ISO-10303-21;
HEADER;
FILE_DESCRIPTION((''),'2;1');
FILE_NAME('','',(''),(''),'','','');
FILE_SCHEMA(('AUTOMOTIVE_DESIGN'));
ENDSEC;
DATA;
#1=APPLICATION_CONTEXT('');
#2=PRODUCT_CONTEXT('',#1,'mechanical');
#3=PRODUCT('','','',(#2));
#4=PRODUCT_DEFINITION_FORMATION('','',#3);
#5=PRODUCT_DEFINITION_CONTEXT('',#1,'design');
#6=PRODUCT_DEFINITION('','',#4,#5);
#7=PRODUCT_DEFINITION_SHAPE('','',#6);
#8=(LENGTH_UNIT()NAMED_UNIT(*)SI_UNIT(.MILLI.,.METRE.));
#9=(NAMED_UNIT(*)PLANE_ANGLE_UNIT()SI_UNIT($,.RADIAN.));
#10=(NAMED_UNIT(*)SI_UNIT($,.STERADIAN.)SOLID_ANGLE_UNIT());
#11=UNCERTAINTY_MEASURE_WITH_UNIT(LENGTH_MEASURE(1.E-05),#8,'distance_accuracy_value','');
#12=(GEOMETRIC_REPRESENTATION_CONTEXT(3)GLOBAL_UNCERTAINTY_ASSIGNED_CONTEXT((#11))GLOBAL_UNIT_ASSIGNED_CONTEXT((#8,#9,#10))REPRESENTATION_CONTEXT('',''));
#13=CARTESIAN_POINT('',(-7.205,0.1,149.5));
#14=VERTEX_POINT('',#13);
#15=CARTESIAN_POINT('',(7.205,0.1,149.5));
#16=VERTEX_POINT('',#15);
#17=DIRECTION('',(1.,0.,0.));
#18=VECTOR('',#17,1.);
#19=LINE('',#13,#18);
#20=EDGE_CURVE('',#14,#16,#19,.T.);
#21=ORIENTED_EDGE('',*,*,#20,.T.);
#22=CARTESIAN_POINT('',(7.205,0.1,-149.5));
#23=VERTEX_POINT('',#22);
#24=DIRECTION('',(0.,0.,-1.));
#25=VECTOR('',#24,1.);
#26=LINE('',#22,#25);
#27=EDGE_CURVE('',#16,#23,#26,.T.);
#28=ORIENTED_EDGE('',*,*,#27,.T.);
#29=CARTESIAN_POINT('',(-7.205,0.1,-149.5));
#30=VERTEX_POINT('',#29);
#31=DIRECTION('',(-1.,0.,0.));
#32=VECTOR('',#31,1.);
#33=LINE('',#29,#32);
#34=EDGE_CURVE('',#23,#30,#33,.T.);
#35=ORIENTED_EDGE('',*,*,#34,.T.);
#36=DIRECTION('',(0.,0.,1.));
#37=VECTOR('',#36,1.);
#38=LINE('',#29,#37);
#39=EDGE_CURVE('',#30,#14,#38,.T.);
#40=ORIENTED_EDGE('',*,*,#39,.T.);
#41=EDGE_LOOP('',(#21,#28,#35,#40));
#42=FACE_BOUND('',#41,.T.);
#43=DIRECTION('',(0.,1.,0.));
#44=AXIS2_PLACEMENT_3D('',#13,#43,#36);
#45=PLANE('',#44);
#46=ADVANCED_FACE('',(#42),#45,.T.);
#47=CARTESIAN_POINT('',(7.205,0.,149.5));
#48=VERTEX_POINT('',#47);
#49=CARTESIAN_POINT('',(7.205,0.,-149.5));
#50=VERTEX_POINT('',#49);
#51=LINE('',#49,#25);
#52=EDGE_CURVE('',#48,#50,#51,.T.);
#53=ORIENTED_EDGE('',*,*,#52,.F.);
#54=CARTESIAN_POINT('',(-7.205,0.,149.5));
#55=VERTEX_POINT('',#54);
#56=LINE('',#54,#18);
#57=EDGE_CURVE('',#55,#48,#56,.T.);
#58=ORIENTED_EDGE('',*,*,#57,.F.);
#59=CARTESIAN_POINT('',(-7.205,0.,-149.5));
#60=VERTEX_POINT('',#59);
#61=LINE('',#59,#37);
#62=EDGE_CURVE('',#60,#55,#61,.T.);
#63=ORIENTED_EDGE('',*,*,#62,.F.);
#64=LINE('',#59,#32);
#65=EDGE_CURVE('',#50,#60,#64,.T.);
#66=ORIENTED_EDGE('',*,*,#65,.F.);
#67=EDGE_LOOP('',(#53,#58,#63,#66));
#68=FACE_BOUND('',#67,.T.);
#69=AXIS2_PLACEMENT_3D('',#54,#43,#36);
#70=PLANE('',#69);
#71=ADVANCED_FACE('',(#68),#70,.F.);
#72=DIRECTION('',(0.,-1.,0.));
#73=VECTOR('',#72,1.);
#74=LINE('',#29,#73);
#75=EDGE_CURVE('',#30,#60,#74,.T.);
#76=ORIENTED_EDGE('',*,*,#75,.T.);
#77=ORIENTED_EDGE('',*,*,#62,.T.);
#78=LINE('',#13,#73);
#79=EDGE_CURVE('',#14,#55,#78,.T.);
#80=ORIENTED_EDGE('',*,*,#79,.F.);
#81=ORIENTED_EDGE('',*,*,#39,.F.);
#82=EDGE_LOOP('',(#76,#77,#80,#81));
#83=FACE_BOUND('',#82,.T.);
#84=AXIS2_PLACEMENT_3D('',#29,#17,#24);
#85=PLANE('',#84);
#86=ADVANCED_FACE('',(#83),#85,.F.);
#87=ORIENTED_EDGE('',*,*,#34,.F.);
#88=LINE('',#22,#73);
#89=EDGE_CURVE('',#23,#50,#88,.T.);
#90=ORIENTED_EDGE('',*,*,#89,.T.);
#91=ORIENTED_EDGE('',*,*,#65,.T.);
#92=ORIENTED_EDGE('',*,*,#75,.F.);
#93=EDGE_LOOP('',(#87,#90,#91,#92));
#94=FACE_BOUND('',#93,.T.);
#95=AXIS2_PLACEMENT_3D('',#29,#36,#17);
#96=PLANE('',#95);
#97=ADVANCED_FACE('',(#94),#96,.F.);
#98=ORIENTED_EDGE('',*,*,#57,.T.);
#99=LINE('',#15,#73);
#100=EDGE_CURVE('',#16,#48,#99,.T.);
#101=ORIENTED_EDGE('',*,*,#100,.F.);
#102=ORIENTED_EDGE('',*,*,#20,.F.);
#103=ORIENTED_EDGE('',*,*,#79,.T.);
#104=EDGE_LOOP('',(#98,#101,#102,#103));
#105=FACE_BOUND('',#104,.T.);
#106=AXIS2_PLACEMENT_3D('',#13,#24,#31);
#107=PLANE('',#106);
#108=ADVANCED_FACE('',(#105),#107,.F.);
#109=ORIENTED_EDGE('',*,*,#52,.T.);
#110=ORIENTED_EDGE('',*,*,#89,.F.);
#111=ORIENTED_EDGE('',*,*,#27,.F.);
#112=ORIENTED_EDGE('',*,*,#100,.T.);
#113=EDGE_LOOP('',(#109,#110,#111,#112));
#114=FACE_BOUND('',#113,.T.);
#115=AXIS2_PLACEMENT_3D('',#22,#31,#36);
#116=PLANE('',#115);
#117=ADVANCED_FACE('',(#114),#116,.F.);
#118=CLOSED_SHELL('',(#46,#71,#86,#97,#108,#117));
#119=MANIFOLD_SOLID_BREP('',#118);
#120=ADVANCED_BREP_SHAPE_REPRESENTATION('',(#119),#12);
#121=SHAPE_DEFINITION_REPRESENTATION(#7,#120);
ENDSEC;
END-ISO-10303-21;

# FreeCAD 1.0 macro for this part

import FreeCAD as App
import Part
import Sketcher
from FreeCAD import Vector


def add_polygon(sketch, points):
    """Adds a closed chain of lines whose ends are joined by coincident constraints."""
    first, n = sketch.GeometryCount, len(points)
    for a, b in zip(points, points[1:] + points[:1]):
        sketch.addGeometry(Part.LineSegment(App.Vector(*a, 0), App.Vector(*b, 0)), False)
    for i in range(n):
        sketch.addConstraint(Sketcher.Constraint("Coincident", first + i, 2, first + (i + 1) % n, 1))

doc = App.newDocument("Part")
body = doc.addObject("PartDesign::Body", "Body")

# Sketch on XZ plane
sketch1 = body.newObject("Sketcher::SketchObject", "Sketch")
sketch1.AttachmentSupport = (doc.getObject("XZ_Plane"), [""])
sketch1.MapMode = "FlatFace"
add_polygon(sketch1, [(-7, -150), (-7, 150), (7, 150), (7, -150)])  # lines 0-3
sketch1.addConstraint(Sketcher.Constraint("Vertical", 0))
sketch1.addConstraint(Sketcher.Constraint("Horizontal", 1))
sketch1.addConstraint(Sketcher.Constraint("Vertical", 2))
sketch1.addConstraint(Sketcher.Constraint("Horizontal", 3))
sketch1.addConstraint(Sketcher.Constraint("Symmetric", 0, 2, 2, 2, -1, 1))
sketch1.addConstraint(Sketcher.Constraint("DistanceY", 0, 1, 0, 2, 299.0))
sketch1.addConstraint(Sketcher.Constraint("DistanceX", 1, 1, 1, 2, 14.41))
pad1 = body.newObject("PartDesign::Pad", "Pad")
pad1.Profile = sketch1
pad1.Length = 0.1
pad1.Reversed = True

doc.recompute()
